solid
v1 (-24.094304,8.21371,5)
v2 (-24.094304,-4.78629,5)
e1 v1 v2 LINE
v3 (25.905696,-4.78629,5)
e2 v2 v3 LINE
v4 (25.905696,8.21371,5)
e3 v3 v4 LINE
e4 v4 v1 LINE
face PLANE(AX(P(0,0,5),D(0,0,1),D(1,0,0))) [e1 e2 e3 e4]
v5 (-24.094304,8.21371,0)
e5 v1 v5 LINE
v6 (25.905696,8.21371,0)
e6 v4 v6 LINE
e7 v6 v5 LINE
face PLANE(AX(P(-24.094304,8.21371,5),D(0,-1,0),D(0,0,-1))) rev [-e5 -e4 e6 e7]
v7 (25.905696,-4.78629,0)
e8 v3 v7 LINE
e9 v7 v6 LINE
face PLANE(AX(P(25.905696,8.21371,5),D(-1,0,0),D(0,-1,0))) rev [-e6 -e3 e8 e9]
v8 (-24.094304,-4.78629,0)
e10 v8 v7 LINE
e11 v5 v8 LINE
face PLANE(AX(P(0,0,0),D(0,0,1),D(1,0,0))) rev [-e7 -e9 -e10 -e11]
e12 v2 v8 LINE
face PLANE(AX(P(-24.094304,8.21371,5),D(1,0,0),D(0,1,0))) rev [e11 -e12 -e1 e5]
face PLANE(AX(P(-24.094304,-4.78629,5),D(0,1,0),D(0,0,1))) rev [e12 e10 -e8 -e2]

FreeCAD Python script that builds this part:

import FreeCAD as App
import Part
import Sketcher

doc = App.newDocument("Part")
body = doc.addObject("PartDesign::Body", "Body")

# Sketch on XY plane
sketch1 = doc.addObject("Sketcher::SketchObject", "Sketch")
body.addObject(sketch1)
sketch1.AttachmentSupport = (doc.XY_Plane, [""])
sketch1.MapMode = "FlatFace"
sketch1.addGeometry([
    Part.LineSegment(App.Vector(-24, 8, 0), App.Vector(-24, -5, 0)),
    Part.LineSegment(App.Vector(-24, -5, 0), App.Vector(26, -5, 0)),
    Part.LineSegment(App.Vector(26, -5, 0), App.Vector(26, 8, 0)),
    Part.LineSegment(App.Vector(26, 8, 0), App.Vector(-24, 8, 0)),
], False)
sketch1.addConstraint([
    Sketcher.Constraint("Coincident", 0, 2, 1, 1),
    Sketcher.Constraint("Coincident", 1, 2, 2, 1),
    Sketcher.Constraint("Coincident", 2, 2, 3, 1),
    Sketcher.Constraint("Coincident", 3, 2, 0, 1),
    Sketcher.Constraint("Vertical", 0),
    Sketcher.Constraint("Horizontal", 1),
    Sketcher.Constraint("Vertical", 2),
    Sketcher.Constraint("Horizontal", 3),
    Sketcher.Constraint("DistanceX", 1, 1, 1, 2, 50.0),
    Sketcher.Constraint("DistanceY", 0, 2, 0, 1, 13.0),
    Sketcher.Constraint("DistanceY", 0, 2, -1, 1, 4.78629),
    Sketcher.Constraint("DistanceX", 0, 2, -1, 1, 24.094304),
])
pad1 = doc.addObject("PartDesign::Pad", "Pad")
body.addObject(pad1)
pad1.Profile = sketch1
pad1.Length = 5

doc.recompute()
